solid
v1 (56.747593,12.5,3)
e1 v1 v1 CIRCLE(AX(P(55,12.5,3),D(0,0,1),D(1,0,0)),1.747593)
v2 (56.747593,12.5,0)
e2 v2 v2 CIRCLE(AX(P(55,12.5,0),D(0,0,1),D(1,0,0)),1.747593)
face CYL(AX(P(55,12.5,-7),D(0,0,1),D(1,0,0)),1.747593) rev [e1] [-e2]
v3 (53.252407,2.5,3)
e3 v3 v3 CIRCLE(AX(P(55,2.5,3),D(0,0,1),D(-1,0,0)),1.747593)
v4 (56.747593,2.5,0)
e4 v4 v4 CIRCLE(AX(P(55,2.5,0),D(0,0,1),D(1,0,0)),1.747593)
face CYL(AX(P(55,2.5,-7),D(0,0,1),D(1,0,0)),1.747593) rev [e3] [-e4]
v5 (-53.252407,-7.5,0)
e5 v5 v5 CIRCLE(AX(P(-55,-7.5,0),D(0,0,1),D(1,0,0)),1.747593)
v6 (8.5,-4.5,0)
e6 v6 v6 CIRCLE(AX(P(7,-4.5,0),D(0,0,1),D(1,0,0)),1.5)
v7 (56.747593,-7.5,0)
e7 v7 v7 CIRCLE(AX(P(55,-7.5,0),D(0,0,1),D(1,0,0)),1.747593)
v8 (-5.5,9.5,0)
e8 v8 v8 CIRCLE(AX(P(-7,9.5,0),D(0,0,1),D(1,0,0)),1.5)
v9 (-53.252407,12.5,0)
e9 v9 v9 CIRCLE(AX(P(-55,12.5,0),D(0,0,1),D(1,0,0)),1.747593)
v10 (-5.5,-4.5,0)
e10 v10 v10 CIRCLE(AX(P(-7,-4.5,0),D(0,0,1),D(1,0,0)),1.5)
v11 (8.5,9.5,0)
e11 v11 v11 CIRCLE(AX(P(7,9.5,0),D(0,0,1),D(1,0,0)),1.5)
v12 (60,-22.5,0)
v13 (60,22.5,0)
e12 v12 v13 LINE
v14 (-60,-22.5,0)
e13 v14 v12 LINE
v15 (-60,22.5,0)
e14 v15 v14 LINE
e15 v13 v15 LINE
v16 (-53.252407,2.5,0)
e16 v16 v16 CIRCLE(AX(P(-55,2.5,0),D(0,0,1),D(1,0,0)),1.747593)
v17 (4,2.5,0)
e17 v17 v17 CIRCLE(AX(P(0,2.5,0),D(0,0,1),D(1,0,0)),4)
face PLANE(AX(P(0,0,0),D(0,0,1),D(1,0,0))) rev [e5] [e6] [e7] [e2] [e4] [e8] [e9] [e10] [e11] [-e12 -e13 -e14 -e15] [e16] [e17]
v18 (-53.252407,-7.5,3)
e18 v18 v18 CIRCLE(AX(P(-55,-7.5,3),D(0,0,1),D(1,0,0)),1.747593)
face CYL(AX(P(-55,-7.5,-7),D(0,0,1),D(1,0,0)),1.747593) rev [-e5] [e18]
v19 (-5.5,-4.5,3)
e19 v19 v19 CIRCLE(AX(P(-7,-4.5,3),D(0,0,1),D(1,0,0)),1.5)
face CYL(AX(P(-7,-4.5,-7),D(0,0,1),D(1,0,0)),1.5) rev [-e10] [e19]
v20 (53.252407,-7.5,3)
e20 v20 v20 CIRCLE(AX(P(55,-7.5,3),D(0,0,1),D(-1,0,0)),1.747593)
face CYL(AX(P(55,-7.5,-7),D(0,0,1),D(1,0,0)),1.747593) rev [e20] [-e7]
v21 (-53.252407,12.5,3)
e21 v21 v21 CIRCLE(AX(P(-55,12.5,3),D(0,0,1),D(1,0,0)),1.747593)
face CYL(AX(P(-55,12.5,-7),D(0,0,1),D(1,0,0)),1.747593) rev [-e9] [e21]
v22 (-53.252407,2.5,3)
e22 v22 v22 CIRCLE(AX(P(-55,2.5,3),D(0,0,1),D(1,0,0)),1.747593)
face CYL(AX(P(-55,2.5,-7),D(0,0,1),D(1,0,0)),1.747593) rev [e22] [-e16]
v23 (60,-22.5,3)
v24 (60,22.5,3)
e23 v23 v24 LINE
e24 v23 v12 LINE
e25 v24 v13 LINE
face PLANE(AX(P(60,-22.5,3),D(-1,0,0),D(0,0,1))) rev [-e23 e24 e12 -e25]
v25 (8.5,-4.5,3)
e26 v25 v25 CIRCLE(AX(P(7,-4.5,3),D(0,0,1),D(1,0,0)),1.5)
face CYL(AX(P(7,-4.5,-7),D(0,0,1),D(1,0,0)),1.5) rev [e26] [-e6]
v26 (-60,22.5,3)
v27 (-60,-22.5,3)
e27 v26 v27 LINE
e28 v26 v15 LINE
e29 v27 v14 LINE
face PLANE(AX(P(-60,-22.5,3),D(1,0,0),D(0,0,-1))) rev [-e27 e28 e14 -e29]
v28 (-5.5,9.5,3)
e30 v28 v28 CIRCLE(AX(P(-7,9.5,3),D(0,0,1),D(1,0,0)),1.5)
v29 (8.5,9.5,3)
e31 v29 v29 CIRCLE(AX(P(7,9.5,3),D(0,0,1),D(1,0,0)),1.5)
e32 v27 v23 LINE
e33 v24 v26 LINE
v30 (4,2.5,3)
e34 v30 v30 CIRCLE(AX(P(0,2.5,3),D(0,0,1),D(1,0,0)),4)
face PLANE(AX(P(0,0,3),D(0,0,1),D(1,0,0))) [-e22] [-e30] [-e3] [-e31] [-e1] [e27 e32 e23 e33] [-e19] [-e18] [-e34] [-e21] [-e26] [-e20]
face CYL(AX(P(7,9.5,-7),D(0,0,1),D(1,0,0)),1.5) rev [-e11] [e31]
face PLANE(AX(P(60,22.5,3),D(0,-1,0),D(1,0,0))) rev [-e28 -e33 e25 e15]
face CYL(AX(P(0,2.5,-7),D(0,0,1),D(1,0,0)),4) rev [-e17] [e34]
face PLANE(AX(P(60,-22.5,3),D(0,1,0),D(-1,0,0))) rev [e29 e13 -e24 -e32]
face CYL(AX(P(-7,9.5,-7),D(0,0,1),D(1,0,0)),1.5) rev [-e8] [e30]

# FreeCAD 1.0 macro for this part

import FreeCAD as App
import Part
import Sketcher


def add_polygon(sketch, points):
    """Adds a closed chain of lines whose ends are joined by coincident constraints."""
    first, n = sketch.GeometryCount, len(points)
    for a, b in zip(points, points[1:] + points[:1]):
        sketch.addGeometry(Part.LineSegment(App.Vector(*a, 0), App.Vector(*b, 0)), False)
    for i in range(n):
        sketch.addConstraint(Sketcher.Constraint("Coincident", first + i, 2, first + (i + 1) % n, 1))

doc = App.newDocument("Part")
params = doc.addObject("Spreadsheet::Sheet", "Params")
for row, (alias, value) in enumerate([
    ("sketch1_width", "120 mm"),
    ("sketch1_height", "45 mm"),
    ("pad1_length", "3 mm"),
    ("sketch2_diameter", "8 mm"),
    ("sketch2_diameter2", "3 mm"),
    ("pocket1_length", "10 mm"),
], start=1):
    params.set(f"A{row}", alias)
    params.set(f"B{row}", "=" + value)
    params.setAlias(f"B{row}", alias)

body = doc.addObject("PartDesign::Body", "Body")

sketch1 = body.newObject("Sketcher::SketchObject", "Sketch")
sketch1.AttachmentSupport = (doc.getObject("XY_Plane"), [""])
sketch1.MapMode = "FlatFace"
add_polygon(sketch1, [(-60, 22.5), (-60, -22.5), (60, -22.5), (60, 22.5)])
sketch1.addConstraint(Sketcher.Constraint("Vertical", 0))
sketch1.addConstraint(Sketcher.Constraint("Horizontal", 1))
sketch1.addConstraint(Sketcher.Constraint("Vertical", 2))
sketch1.addConstraint(Sketcher.Constraint("Horizontal", 3))
sketch1.addConstraint(Sketcher.Constraint("Symmetric", 0, 2, 2, 2, -1, 1))
sketch1.addConstraint(Sketcher.Constraint("DistanceX", 1, 1, 1, 2, 120.0))
sketch1.addConstraint(Sketcher.Constraint("DistanceY", 0, 2, 0, 1, 45.0))
sketch1.setExpression("Constraints[9]", "Params.sketch1_width")
sketch1.setExpression("Constraints[10]", "Params.sketch1_height")
pad1 = body.newObject("PartDesign::Pad", "Pad")
pad1.Profile = sketch1
pad1.setExpression("Length", "Params.pad1_length")

sketch2 = body.newObject("Sketcher::SketchObject", "Sketch001")
sketch2.AttachmentSupport = (doc.getObject("XY_Plane"), [""])
sketch2.MapMode = "FlatFace"
sketch2.AttachmentOffset = App.Placement(App.Vector(0, 0, 3), App.Rotation())
sketch2.addGeometry(Part.Circle(App.Vector(-55, 12.5, 0), App.Vector(0, 0, 1), 1.747593), False)
sketch2.addGeometry(Part.Circle(App.Vector(55, 12.5, 0), App.Vector(0, 0, 1), 1.747593), False)
sketch2.addGeometry(Part.Circle(App.Vector(-55, 2.5, 0), App.Vector(0, 0, 1), 1.747593), False)
sketch2.addGeometry(Part.Circle(App.Vector(-55, -7.5, 0), App.Vector(0, 0, 1), 1.747593), False)
sketch2.addGeometry(Part.Circle(App.Vector(55, -7.5, 0), App.Vector(0, 0, 1), 1.747593), False)
sketch2.addGeometry(Part.Circle(App.Vector(55, 2.5, 0), App.Vector(0, 0, 1), 1.747593), False)
sketch2.addGeometry(Part.Circle(App.Vector(0, 2.5, 0), App.Vector(0, 0, 1), 4), False)
sketch2.addGeometry(Part.Circle(App.Vector(-7, 9.5, 0), App.Vector(0, 0, 1), 1.5), False)
sketch2.addGeometry(Part.Circle(App.Vector(7, 9.5, 0), App.Vector(0, 0, 1), 1.5), False)
sketch2.addGeometry(Part.Circle(App.Vector(7, -4.5, 0), App.Vector(0, 0, 1), 1.5), False)
sketch2.addGeometry(Part.Circle(App.Vector(-7, -4.5, 0), App.Vector(0, 0, 1), 1.5), False)
sketch2.addConstraint(Sketcher.Constraint("Equal", 0, 1))
sketch2.addConstraint(Sketcher.Constraint("Equal", 1, 2))
sketch2.addConstraint(Sketcher.Constraint("Equal", 2, 3))
sketch2.addConstraint(Sketcher.Constraint("Equal", 3, 4))
sketch2.addConstraint(Sketcher.Constraint("Equal", 4, 5))
sketch2.addConstraint(Sketcher.Constraint("Equal", 7, 8))
sketch2.addConstraint(Sketcher.Constraint("Equal", 8, 9))
sketch2.addConstraint(Sketcher.Constraint("Equal", 9, 10))
sketch2.addConstraint(Sketcher.Constraint("Symmetric", 0, 3, 1, 3, -2))
sketch2.addConstraint(Sketcher.Constraint("Symmetric", 3, 3, 4, 3, -2))
sketch2.addConstraint(Sketcher.Constraint("Symmetric", 2, 3, 5, 3, -2))
sketch2.addConstraint(Sketcher.Constraint("Symmetric", 7, 3, 8, 3, -2))
sketch2.addConstraint(Sketcher.Constraint("Symmetric", 9, 3, 10, 3, -2))
sketch2.addConstraint(Sketcher.Constraint("PointOnObject", 6, 3, -2))
sketch2.addConstraint(Sketcher.Constraint("Horizontal", 5, 3, 6, 3))
sketch2.addConstraint(Sketcher.Constraint("Vertical", 0, 3, 2, 3))
sketch2.addConstraint(Sketcher.Constraint("Vertical", 2, 3, 3, 3))
sketch2.addConstraint(Sketcher.Constraint("Vertical", 8, 3, 9, 3))
sketch2.addConstraint(Sketcher.Constraint("Diameter", 6, 8.0))
sketch2.addConstraint(Sketcher.Constraint("Diameter", 7, 3.0))
sketch2.addConstraint(Sketcher.Constraint("DistanceX", 0, 3, -1, 1, 55.0))
sketch2.addConstraint(Sketcher.Constraint("DistanceX", 7, 3, -1, 1, 7.0))
sketch2.addConstraint(Sketcher.Constraint("DistanceY", 2, 3, 0, 3, 10.0))
sketch2.addConstraint(Sketcher.Constraint("DistanceY", 3, 3, 2, 3, 10.0))
sketch2.addConstraint(Sketcher.Constraint("DistanceY", 6, 3, 7, 3, 7.0))
sketch2.addConstraint(Sketcher.Constraint("DistanceY", 9, 3, 6, 3, 7.0))
sketch2.addConstraint(Sketcher.Constraint("DistanceY", -1, 1, 0, 3, 12.5))
sketch2.addConstraint(Sketcher.Constraint("Diameter", 0, 3.495186))
sketch2.setExpression("Constraints[18]", "Params.sketch2_diameter")
sketch2.setExpression("Constraints[19]", "Params.sketch2_diameter2")
pocket1 = body.newObject("PartDesign::Pocket", "Pocket")
pocket1.Profile = sketch2
pocket1.setExpression("Length", "Params.pocket1_length")

doc.recompute()
